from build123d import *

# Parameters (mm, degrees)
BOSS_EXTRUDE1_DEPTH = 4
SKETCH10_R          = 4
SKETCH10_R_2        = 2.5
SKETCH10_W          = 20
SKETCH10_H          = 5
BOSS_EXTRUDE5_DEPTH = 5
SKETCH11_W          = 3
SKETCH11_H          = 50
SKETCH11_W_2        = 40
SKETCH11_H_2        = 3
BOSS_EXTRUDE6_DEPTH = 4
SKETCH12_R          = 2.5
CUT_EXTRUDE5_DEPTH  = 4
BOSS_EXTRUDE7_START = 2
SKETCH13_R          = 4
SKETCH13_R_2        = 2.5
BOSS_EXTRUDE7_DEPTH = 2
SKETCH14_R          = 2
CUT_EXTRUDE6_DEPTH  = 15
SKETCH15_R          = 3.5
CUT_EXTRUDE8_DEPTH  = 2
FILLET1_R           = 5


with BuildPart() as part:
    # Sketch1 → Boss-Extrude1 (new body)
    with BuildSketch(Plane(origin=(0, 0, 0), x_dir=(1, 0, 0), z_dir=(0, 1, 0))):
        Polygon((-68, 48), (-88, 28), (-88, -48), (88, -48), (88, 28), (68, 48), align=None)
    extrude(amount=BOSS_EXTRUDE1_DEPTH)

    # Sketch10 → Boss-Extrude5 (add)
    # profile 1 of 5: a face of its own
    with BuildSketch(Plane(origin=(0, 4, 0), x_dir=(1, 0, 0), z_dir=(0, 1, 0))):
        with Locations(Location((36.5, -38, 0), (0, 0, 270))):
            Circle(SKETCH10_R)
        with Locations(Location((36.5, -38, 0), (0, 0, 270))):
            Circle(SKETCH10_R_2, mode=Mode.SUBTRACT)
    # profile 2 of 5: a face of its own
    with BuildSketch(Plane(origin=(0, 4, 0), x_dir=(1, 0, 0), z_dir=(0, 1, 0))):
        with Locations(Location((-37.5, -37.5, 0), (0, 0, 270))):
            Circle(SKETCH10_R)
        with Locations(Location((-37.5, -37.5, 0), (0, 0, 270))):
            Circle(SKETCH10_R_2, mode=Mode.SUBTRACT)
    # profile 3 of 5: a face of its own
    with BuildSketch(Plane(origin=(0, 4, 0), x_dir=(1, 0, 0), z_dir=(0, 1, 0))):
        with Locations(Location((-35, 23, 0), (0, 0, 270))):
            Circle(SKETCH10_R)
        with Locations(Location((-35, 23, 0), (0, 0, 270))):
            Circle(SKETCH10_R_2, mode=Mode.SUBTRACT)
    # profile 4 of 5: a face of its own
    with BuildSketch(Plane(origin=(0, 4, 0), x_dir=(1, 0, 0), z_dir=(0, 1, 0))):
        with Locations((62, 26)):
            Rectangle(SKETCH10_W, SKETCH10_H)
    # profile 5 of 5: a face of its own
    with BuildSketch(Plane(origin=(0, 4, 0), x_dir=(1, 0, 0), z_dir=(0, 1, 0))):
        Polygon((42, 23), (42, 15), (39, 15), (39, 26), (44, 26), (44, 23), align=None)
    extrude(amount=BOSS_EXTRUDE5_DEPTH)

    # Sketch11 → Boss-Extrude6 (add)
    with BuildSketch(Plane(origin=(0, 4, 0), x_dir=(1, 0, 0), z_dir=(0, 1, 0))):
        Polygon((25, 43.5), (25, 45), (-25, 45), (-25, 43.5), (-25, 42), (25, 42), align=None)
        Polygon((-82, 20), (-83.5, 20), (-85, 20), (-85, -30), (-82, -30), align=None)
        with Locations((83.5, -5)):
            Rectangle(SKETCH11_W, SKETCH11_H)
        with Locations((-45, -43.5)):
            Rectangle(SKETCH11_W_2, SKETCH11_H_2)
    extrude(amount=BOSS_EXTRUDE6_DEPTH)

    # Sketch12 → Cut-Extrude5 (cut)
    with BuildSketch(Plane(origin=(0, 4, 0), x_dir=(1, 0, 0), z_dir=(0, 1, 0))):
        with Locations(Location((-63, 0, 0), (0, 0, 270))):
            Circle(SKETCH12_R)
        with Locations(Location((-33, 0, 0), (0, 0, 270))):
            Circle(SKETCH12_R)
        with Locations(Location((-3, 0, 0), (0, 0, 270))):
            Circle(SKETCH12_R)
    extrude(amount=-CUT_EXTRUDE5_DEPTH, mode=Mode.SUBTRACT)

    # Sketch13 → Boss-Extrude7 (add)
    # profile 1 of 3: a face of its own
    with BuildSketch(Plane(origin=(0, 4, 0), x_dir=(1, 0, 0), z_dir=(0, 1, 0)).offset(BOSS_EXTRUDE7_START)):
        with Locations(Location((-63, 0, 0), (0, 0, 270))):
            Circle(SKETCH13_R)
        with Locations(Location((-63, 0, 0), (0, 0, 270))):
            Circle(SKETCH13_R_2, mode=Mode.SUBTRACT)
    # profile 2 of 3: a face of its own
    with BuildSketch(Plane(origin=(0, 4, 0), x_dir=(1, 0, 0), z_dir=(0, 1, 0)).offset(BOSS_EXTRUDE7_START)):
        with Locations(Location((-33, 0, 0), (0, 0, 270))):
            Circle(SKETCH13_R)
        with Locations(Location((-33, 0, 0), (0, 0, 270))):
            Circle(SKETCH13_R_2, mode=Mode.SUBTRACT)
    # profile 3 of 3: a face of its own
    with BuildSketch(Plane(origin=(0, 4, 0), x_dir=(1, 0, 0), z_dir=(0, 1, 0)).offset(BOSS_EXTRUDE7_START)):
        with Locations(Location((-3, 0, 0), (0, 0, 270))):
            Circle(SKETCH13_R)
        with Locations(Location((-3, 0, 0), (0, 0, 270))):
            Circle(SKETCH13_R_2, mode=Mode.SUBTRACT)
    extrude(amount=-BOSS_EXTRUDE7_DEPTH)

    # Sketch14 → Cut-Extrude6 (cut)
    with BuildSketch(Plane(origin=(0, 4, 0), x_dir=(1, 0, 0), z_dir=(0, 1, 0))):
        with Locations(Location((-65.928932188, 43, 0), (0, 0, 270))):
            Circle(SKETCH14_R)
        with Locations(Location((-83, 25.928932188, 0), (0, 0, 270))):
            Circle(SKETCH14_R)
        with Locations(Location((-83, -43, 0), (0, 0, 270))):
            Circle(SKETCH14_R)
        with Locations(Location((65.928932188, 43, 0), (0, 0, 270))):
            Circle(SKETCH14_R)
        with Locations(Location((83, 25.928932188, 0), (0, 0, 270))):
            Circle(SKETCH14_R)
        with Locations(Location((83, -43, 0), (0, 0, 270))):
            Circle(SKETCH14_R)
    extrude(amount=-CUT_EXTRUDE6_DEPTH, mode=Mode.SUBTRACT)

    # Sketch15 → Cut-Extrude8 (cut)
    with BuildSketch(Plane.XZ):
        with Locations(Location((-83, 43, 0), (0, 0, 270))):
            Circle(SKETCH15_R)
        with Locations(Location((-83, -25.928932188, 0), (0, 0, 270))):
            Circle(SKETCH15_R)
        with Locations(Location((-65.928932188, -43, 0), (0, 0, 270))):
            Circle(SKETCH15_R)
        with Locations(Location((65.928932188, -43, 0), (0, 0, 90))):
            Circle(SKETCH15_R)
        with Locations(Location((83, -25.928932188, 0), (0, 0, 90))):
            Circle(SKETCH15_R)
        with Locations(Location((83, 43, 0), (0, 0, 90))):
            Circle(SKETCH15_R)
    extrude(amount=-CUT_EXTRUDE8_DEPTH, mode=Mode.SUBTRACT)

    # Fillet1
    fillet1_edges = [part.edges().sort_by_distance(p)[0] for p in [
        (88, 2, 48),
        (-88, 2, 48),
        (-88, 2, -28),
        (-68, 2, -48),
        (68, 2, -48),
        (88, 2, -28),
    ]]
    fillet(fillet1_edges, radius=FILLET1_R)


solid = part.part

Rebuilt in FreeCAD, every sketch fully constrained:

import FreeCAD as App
import Part
import Sketcher
from FreeCAD import Vector
Q = App.Units.Quantity


def edges_at(feature, points):
    """Names of the edges that pass closest to the given points."""
    edges = feature.Shape.Edges
    near = lambda p: min(range(len(edges)), key=lambda i: edges[i].distToShape(Part.Vertex(*p))[0])
    return sorted({f"Edge{near(p) + 1}" for p in points})

doc = App.newDocument("Part")
body = doc.addObject("PartDesign::Body", "Body")

sketch1 = body.newObject("Sketcher::SketchObject", "Sketch")
sketch1.AttachmentSupport = (doc.getObject("XZ_Plane"), [""])
sketch1.MapMode = "FlatFace"
sketch1.addGeometry([
    Part.LineSegment(Vector(-68, -48, 0), Vector(-88, -28, 0)),
    Part.LineSegment(Vector(-88, -28, 0), Vector(-88, 48, 0)),
    Part.LineSegment(Vector(-88, 48, 0), Vector(88, 48, 0)),
    Part.LineSegment(Vector(88, 48, 0), Vector(88, -28, 0)),
    Part.LineSegment(Vector(88, -28, 0), Vector(68, -48, 0)),
    Part.LineSegment(Vector(68, -48, 0), Vector(-68, -48, 0)),
], False)
sketch1.addConstraint([
    Sketcher.Constraint("Coincident", 0, 2, 1, 1),
    Sketcher.Constraint("Coincident", 1, 2, 2, 1),
    Sketcher.Constraint("Coincident", 2, 2, 3, 1),
    Sketcher.Constraint("Coincident", 3, 2, 4, 1),
    Sketcher.Constraint("Coincident", 4, 2, 5, 1),
    Sketcher.Constraint("Coincident", 5, 2, 0, 1),
    Sketcher.Constraint("Vertical", 1),
    Sketcher.Constraint("Horizontal", 2),
    Sketcher.Constraint("Vertical", 3),
    Sketcher.Constraint("Horizontal", 5),
    Sketcher.Constraint("Symmetric", 0, 2, 3, 2, -2),
    Sketcher.Constraint("Perpendicular", 0, 4),
    Sketcher.Constraint("Equal", 0, 4),
    Sketcher.Constraint("DistanceX", 2, 1, 2, 2, Q("176 mm")),
    Sketcher.Constraint("DistanceX", 5, 2, 5, 1, Q("136 mm")),
    Sketcher.Constraint("DistanceY", 1, 1, 1, 2, Q("76 mm")),
    Sketcher.Constraint("DistanceY", 0, 2, -1, 1, Q("28 mm")),
])
pad1 = body.newObject("PartDesign::Pad", "Pad")
pad1.Profile = sketch1
pad1.Length = 4
pad1.Reversed = True

sketch2 = body.newObject("Sketcher::SketchObject", "Sketch001")
sketch2.AttachmentSupport = (doc.getObject("XZ_Plane"), [""])
sketch2.MapMode = "FlatFace"
sketch2.AttachmentOffset = App.Placement(Vector(0, 0, -4), App.Rotation())
sketch2.addGeometry([
    Part.Circle(Vector(36.5, 38, 0), Vector(0, 0, 1), 4),
    Part.Circle(Vector(36.5, 38, 0), Vector(0, 0, 1), 2.5),
    Part.Circle(Vector(-37.5, 37.5, 0), Vector(0, 0, 1), 4),
    Part.Circle(Vector(-37.5, 37.5, 0), Vector(0, 0, 1), 2.5),
    Part.Circle(Vector(-35, -23, 0), Vector(0, 0, 1), 4),
    Part.Circle(Vector(-35, -23, 0), Vector(0, 0, 1), 2.5),
    Part.LineSegment(Vector(52, -28.5, 0), Vector(52, -23.5, 0)),
    Part.LineSegment(Vector(52, -23.5, 0), Vector(72, -23.5, 0)),
    Part.LineSegment(Vector(72, -23.5, 0), Vector(72, -28.5, 0)),
    Part.LineSegment(Vector(72, -28.5, 0), Vector(52, -28.5, 0)),
    Part.LineSegment(Vector(42, -15, 0), Vector(42, -23, 0)),
    Part.LineSegment(Vector(42, -23, 0), Vector(44, -23, 0)),
    Part.LineSegment(Vector(44, -23, 0), Vector(44, -26, 0)),
    Part.LineSegment(Vector(44, -26, 0), Vector(39, -26, 0)),
    Part.LineSegment(Vector(39, -26, 0), Vector(39, -15, 0)),
    Part.LineSegment(Vector(39, -15, 0), Vector(42, -15, 0)),
], False)
sketch2.addConstraint([
    Sketcher.Constraint("Coincident", 6, 2, 7, 1),
    Sketcher.Constraint("Coincident", 7, 2, 8, 1),
    Sketcher.Constraint("Coincident", 8, 2, 9, 1),
    Sketcher.Constraint("Coincident", 9, 2, 6, 1),
    Sketcher.Constraint("Coincident", 10, 2, 11, 1),
    Sketcher.Constraint("Coincident", 11, 2, 12, 1),
    Sketcher.Constraint("Coincident", 12, 2, 13, 1),
    Sketcher.Constraint("Coincident", 13, 2, 14, 1),
    Sketcher.Constraint("Coincident", 14, 2, 15, 1),
    Sketcher.Constraint("Coincident", 15, 2, 10, 1),
    Sketcher.Constraint("Vertical", 6),
    Sketcher.Constraint("Horizontal", 7),
    Sketcher.Constraint("Vertical", 8),
    Sketcher.Constraint("Horizontal", 9),
    Sketcher.Constraint("Vertical", 10),
    Sketcher.Constraint("Horizontal", 11),
    Sketcher.Constraint("Vertical", 12),
    Sketcher.Constraint("Horizontal", 13),
    Sketcher.Constraint("Vertical", 14),
    Sketcher.Constraint("Horizontal", 15),
    Sketcher.Constraint("Coincident", 1, 3, 0, 3),
    Sketcher.Constraint("Coincident", 3, 3, 2, 3),
    Sketcher.Constraint("Coincident", 5, 3, 4, 3),
    Sketcher.Constraint("Equal", 0, 2),
    Sketcher.Constraint("Equal", 1, 3),
    Sketcher.Constraint("Equal", 2, 4),
    Sketcher.Constraint("Equal", 3, 5),
    Sketcher.Constraint("Horizontal", 5, 3, 10, 2),
    Sketcher.Constraint("Equal", 13, 6),
    Sketcher.Constraint("Equal", 15, 12),
    Sketcher.Constraint("Diameter", 0, Q("8 mm")),
    Sketcher.Constraint("Diameter", 1, Q("5 mm")),
    Sketcher.Constraint("DistanceX", 7, 1, 7, 2, Q("20 mm")),
    Sketcher.Constraint("DistanceX", 11, 1, 11, 2, Q("2 mm")),
    Sketcher.Constraint("DistanceX", 13, 2, 13, 1, Q("5 mm")),
    Sketcher.Constraint("DistanceY", 10, 2, 10, 1, Q("8 mm")),
    Sketcher.Constraint("DistanceY", -1, 1, 0, 3, Q("38 mm")),
    Sketcher.Constraint("DistanceX", 4, 3, -1, 1, Q("35 mm")),
    Sketcher.Constraint("DistanceY", 4, 3, -1, 1, Q("23 mm")),
    Sketcher.Constraint("DistanceX", -1, 1, 6, 2, Q("52 mm")),
    Sketcher.Constraint("DistanceX", -1, 1, 10, 2, Q("42 mm")),
    Sketcher.Constraint("DistanceX", 2, 3, 0, 3, Q("74 mm")),
    Sketcher.Constraint("DistanceY", 6, 2, 2, 3, Q("61 mm")),
    Sketcher.Constraint("DistanceX", -1, 1, 0, 3, Q("36.5 mm")),
    Sketcher.Constraint("DistanceY", -1, 1, 2, 3, Q("37.5 mm")),
])
pad2 = body.newObject("PartDesign::Pad", "Pad001")
pad2.Profile = sketch2
pad2.Length = 5
pad2.Reversed = True

sketch3 = body.newObject("Sketcher::SketchObject", "Sketch002")
sketch3.AttachmentSupport = (doc.getObject("XZ_Plane"), [""])
sketch3.MapMode = "FlatFace"
sketch3.AttachmentOffset = App.Placement(Vector(0, 0, -4), App.Rotation())
sketch3.addGeometry([
    Part.LineSegment(Vector(25, -45, 0), Vector(-25, -45, 0)),
    Part.LineSegment(Vector(-25, -45, 0), Vector(-25, -42, 0)),
    Part.LineSegment(Vector(-25, -42, 0), Vector(25, -42, 0)),
    Part.LineSegment(Vector(25, -42, 0), Vector(25, -45, 0)),
    Part.LineSegment(Vector(-82, -20, 0), Vector(-85, -20, 0)),
    Part.LineSegment(Vector(-85, -20, 0), Vector(-85, 30, 0)),
    Part.LineSegment(Vector(-85, 30, 0), Vector(-82, 30, 0)),
    Part.LineSegment(Vector(-82, 30, 0), Vector(-82, -20, 0)),
    Part.LineSegment(Vector(82, -20, 0), Vector(82, 30, 0)),
    Part.LineSegment(Vector(82, 30, 0), Vector(85, 30, 0)),
    Part.LineSegment(Vector(85, 30, 0), Vector(85, -20, 0)),
    Part.LineSegment(Vector(85, -20, 0), Vector(82, -20, 0)),
    Part.LineSegment(Vector(-65, 42, 0), Vector(-65, 45, 0)),
    Part.LineSegment(Vector(-65, 45, 0), Vector(-25, 45, 0)),
    Part.LineSegment(Vector(-25, 45, 0), Vector(-25, 42, 0)),
    Part.LineSegment(Vector(-25, 42, 0), Vector(-65, 42, 0)),
], False)
sketch3.addConstraint([
    Sketcher.Constraint("Coincident", 0, 2, 1, 1),
    Sketcher.Constraint("Coincident", 1, 2, 2, 1),
    Sketcher.Constraint("Coincident", 2, 2, 3, 1),
    Sketcher.Constraint("Coincident", 3, 2, 0, 1),
    Sketcher.Constraint("Coincident", 4, 2, 5, 1),
    Sketcher.Constraint("Coincident", 5, 2, 6, 1),
    Sketcher.Constraint("Coincident", 6, 2, 7, 1),
    Sketcher.Constraint("Coincident", 7, 2, 4, 1),
    Sketcher.Constraint("Coincident", 8, 2, 9, 1),
    Sketcher.Constraint("Coincident", 9, 2, 10, 1),
    Sketcher.Constraint("Coincident", 10, 2, 11, 1),
    Sketcher.Constraint("Coincident", 11, 2, 8, 1),
    Sketcher.Constraint("Coincident", 12, 2, 13, 1),
    Sketcher.Constraint("Coincident", 13, 2, 14, 1),
    Sketcher.Constraint("Coincident", 14, 2, 15, 1),
    Sketcher.Constraint("Coincident", 15, 2, 12, 1),
    Sketcher.Constraint("Horizontal", 0),
    Sketcher.Constraint("Vertical", 1),
    Sketcher.Constraint("Horizontal", 2),
    Sketcher.Constraint("Vertical", 3),
    Sketcher.Constraint("Horizontal", 4),
    Sketcher.Constraint("Vertical", 5),
    Sketcher.Constraint("Horizontal", 6),
    Sketcher.Constraint("Vertical", 7),
    Sketcher.Constraint("Vertical", 8),
    Sketcher.Constraint("Horizontal", 9),
    Sketcher.Constraint("Vertical", 10),
    Sketcher.Constraint("Horizontal", 11),
    Sketcher.Constraint("Vertical", 12),
    Sketcher.Constraint("Horizontal", 13),
    Sketcher.Constraint("Vertical", 14),
    Sketcher.Constraint("Horizontal", 15),
    Sketcher.Constraint("Symmetric", 3, 2, 13, 2, -1, 1),
    Sketcher.Constraint("Symmetric", 6, 2, 8, 2, -2),
    Sketcher.Constraint("Symmetric", 4, 2, 10, 2, -2),
    Sketcher.Constraint("Symmetric", 1, 2, 14, 2, -1),
    Sketcher.Constraint("Equal", 11, 1),
    Sketcher.Constraint("Equal", 2, 5),
    Sketcher.Constraint("DistanceX", 0, 2, 0, 1, Q("50 mm")),
    Sketcher.Constraint("DistanceX", 4, 2, 4, 1, Q("3 mm")),
    Sketcher.Constraint("DistanceX", 13, 1, 13, 2, Q("40 mm")),
    Sketcher.Constraint("DistanceY", 0, 2, -1, 1, Q("45 mm")),
    Sketcher.Constraint("DistanceX", 4, 2, -1, 1, Q("85 mm")),
    Sketcher.Constraint("DistanceY", 4, 2, -1, 1, Q("20 mm")),
])
pad3 = body.newObject("PartDesign::Pad", "Pad002")
pad3.Profile = sketch3
pad3.Length = 4
pad3.Reversed = True

sketch4 = body.newObject("Sketcher::SketchObject", "Sketch003")
sketch4.AttachmentSupport = (doc.getObject("XZ_Plane"), [""])
sketch4.MapMode = "FlatFace"
sketch4.AttachmentOffset = App.Placement(Vector(0, 0, -4), App.Rotation())
sketch4.addGeometry([
    Part.Circle(Vector(-63, 0, 0), Vector(0, 0, 1), 2.5),
    Part.Circle(Vector(-33, 0, 0), Vector(0, 0, 1), 2.5),
    Part.Circle(Vector(-3, 0, 0), Vector(0, 0, 1), 2.5),
], False)
sketch4.addConstraint([
    Sketcher.Constraint("Equal", 0, 1),
    Sketcher.Constraint("Equal", 1, 2),
    Sketcher.Constraint("PointOnObject", 0, 3, -1),
    Sketcher.Constraint("PointOnObject", 1, 3, -1),
    Sketcher.Constraint("PointOnObject", 2, 3, -1),
    Sketcher.Constraint("Diameter", 0, Q("5 mm")),
    Sketcher.Constraint("DistanceX", 0, 3, -1, 1, Q("63 mm")),
    Sketcher.Constraint("DistanceX", 1, 3, -1, 1, Q("33 mm")),
    Sketcher.Constraint("DistanceX", 2, 3, -1, 1, Q("3 mm")),
])
pocket1 = body.newObject("PartDesign::Pocket", "Pocket")
pocket1.Profile = sketch4
pocket1.Length = 4
pocket1.Reversed = True

sketch5 = body.newObject("Sketcher::SketchObject", "Sketch004")
sketch5.AttachmentSupport = (doc.getObject("XZ_Plane"), [""])
sketch5.MapMode = "FlatFace"
sketch5.AttachmentOffset = App.Placement(Vector(0, 0, -6), App.Rotation())
sketch5.addGeometry([
    Part.Circle(Vector(-63, 0, 0), Vector(0, 0, 1), 4),
    Part.Circle(Vector(-63, 0, 0), Vector(0, 0, 1), 2.5),
    Part.Circle(Vector(-33, 0, 0), Vector(0, 0, 1), 4),
    Part.Circle(Vector(-33, 0, 0), Vector(0, 0, 1), 2.5),
    Part.Circle(Vector(-3, 0, 0), Vector(0, 0, 1), 4),
    Part.Circle(Vector(-3, 0, 0), Vector(0, 0, 1), 2.5),
], False)
sketch5.addConstraint([
    Sketcher.Constraint("Coincident", 1, 3, 0, 3),
    Sketcher.Constraint("Coincident", 3, 3, 2, 3),
    Sketcher.Constraint("Coincident", 5, 3, 4, 3),
    Sketcher.Constraint("Equal", 0, 2),
    Sketcher.Constraint("Equal", 1, 3),
    Sketcher.Constraint("Equal", 2, 4),
    Sketcher.Constraint("Equal", 3, 5),
    Sketcher.Constraint("PointOnObject", 0, 3, -1),
    Sketcher.Constraint("PointOnObject", 2, 3, -1),
    Sketcher.Constraint("PointOnObject", 4, 3, -1),
    Sketcher.Constraint("Diameter", 0, Q("8 mm")),
    Sketcher.Constraint("Diameter", 1, Q("5 mm")),
    Sketcher.Constraint("DistanceX", 0, 3, -1, 1, Q("63 mm")),
    Sketcher.Constraint("DistanceX", 2, 3, -1, 1, Q("33 mm")),
    Sketcher.Constraint("DistanceX", 4, 3, -1, 1, Q("3 mm")),
])
pad4 = body.newObject("PartDesign::Pad", "Pad003")
pad4.Profile = sketch5
pad4.Length = 2

sketch6 = body.newObject("Sketcher::SketchObject", "Sketch005")
sketch6.AttachmentSupport = (doc.getObject("XZ_Plane"), [""])
sketch6.MapMode = "FlatFace"
sketch6.AttachmentOffset = App.Placement(Vector(0, 0, -4), App.Rotation())
sketch6.addGeometry([
    Part.Circle(Vector(-65.928932, -43, 0), Vector(0, 0, 1), 2),
    Part.Circle(Vector(-83, -25.928932, 0), Vector(0, 0, 1), 2),
    Part.Circle(Vector(-83, 43, 0), Vector(0, 0, 1), 2),
    Part.Circle(Vector(65.928932, -43, 0), Vector(0, 0, 1), 2),
    Part.Circle(Vector(83, -25.928932, 0), Vector(0, 0, 1), 2),
    Part.Circle(Vector(83, 43, 0), Vector(0, 0, 1), 2),
], False)
sketch6.addConstraint([
    Sketcher.Constraint("Equal", 0, 1),
    Sketcher.Constraint("Equal", 1, 2),
    Sketcher.Constraint("Equal", 2, 3),
    Sketcher.Constraint("Equal", 3, 4),
    Sketcher.Constraint("Equal", 4, 5),
    Sketcher.Constraint("Symmetric", 0, 3, 3, 3, -2),
    Sketcher.Constraint("Symmetric", 1, 3, 4, 3, -2),
    Sketcher.Constraint("Symmetric", 2, 3, 5, 3, -2),
    Sketcher.Constraint("Vertical", 1, 3, 2, 3),
    Sketcher.Constraint("Diameter", 0, Q("4 mm")),
    Sketcher.Constraint("DistanceY", 0, 3, -1, 1, Q("43 mm")),
    Sketcher.Constraint("DistanceX", 1, 3, -1, 1, Q("83 mm")),
    Sketcher.Constraint("DistanceY", -1, 1, 2, 3, Q("43 mm")),
    Sketcher.Constraint("DistanceX", 0, 3, -1, 1, Q("65.928932 mm")),
    Sketcher.Constraint("DistanceY", 1, 3, -1, 1, Q("25.928932 mm")),
])
pocket2 = body.newObject("PartDesign::Pocket", "Pocket001")
pocket2.Profile = sketch6
pocket2.Length = 15
pocket2.Reversed = True

sketch7 = body.newObject("Sketcher::SketchObject", "Sketch006")
sketch7.AttachmentSupport = (doc.getObject("XZ_Plane"), [""])
sketch7.MapMode = "FlatFace"
sketch7.addGeometry([
    Part.Circle(Vector(-83, 43, 0), Vector(0, 0, 1), 3.5),
    Part.Circle(Vector(-83, -25.928932, 0), Vector(0, 0, 1), 3.5),
    Part.Circle(Vector(-65.928932, -43, 0), Vector(0, 0, 1), 3.5),
    Part.Circle(Vector(65.928932, -43, 0), Vector(0, 0, 1), 3.5),
    Part.Circle(Vector(83, -25.928932, 0), Vector(0, 0, 1), 3.5),
    Part.Circle(Vector(83, 43, 0), Vector(0, 0, 1), 3.5),
], False)
sketch7.addConstraint([
    Sketcher.Constraint("Equal", 0, 1),
    Sketcher.Constraint("Equal", 1, 2),
    Sketcher.Constraint("Equal", 2, 3),
    Sketcher.Constraint("Equal", 3, 4),
    Sketcher.Constraint("Equal", 4, 5),
    Sketcher.Constraint("Symmetric", 2, 3, 3, 3, -2),
    Sketcher.Constraint("Symmetric", 1, 3, 4, 3, -2),
    Sketcher.Constraint("Symmetric", 0, 3, 5, 3, -2),
    Sketcher.Constraint("Vertical", 0, 3, 1, 3),
    Sketcher.Constraint("Diameter", 0, Q("7 mm")),
    Sketcher.Constraint("DistanceX", 0, 3, -1, 1, Q("83 mm")),
    Sketcher.Constraint("DistanceY", -1, 1, 0, 3, Q("43 mm")),
    Sketcher.Constraint("DistanceY", 2, 3, -1, 1, Q("43 mm")),
    Sketcher.Constraint("DistanceY", 1, 3, -1, 1, Q("25.928932 mm")),
    Sketcher.Constraint("DistanceX", 2, 3, -1, 1, Q("65.928932 mm")),
])
pocket3 = body.newObject("PartDesign::Pocket", "Pocket002")
pocket3.Profile = sketch7
pocket3.Length = 2
doc.recompute()

fillet = body.newObject("PartDesign::Fillet", "Fillet")
fillet.Base = (pocket3, edges_at(pocket3, [
    (88, 2, 48),
    (-88, 2, 48),
    (-88, 2, -28),
    (-68, 2, -48),
    (68, 2, -48),
    (88, 2, -28),
]))
fillet.Radius = 5

doc.recompute()
